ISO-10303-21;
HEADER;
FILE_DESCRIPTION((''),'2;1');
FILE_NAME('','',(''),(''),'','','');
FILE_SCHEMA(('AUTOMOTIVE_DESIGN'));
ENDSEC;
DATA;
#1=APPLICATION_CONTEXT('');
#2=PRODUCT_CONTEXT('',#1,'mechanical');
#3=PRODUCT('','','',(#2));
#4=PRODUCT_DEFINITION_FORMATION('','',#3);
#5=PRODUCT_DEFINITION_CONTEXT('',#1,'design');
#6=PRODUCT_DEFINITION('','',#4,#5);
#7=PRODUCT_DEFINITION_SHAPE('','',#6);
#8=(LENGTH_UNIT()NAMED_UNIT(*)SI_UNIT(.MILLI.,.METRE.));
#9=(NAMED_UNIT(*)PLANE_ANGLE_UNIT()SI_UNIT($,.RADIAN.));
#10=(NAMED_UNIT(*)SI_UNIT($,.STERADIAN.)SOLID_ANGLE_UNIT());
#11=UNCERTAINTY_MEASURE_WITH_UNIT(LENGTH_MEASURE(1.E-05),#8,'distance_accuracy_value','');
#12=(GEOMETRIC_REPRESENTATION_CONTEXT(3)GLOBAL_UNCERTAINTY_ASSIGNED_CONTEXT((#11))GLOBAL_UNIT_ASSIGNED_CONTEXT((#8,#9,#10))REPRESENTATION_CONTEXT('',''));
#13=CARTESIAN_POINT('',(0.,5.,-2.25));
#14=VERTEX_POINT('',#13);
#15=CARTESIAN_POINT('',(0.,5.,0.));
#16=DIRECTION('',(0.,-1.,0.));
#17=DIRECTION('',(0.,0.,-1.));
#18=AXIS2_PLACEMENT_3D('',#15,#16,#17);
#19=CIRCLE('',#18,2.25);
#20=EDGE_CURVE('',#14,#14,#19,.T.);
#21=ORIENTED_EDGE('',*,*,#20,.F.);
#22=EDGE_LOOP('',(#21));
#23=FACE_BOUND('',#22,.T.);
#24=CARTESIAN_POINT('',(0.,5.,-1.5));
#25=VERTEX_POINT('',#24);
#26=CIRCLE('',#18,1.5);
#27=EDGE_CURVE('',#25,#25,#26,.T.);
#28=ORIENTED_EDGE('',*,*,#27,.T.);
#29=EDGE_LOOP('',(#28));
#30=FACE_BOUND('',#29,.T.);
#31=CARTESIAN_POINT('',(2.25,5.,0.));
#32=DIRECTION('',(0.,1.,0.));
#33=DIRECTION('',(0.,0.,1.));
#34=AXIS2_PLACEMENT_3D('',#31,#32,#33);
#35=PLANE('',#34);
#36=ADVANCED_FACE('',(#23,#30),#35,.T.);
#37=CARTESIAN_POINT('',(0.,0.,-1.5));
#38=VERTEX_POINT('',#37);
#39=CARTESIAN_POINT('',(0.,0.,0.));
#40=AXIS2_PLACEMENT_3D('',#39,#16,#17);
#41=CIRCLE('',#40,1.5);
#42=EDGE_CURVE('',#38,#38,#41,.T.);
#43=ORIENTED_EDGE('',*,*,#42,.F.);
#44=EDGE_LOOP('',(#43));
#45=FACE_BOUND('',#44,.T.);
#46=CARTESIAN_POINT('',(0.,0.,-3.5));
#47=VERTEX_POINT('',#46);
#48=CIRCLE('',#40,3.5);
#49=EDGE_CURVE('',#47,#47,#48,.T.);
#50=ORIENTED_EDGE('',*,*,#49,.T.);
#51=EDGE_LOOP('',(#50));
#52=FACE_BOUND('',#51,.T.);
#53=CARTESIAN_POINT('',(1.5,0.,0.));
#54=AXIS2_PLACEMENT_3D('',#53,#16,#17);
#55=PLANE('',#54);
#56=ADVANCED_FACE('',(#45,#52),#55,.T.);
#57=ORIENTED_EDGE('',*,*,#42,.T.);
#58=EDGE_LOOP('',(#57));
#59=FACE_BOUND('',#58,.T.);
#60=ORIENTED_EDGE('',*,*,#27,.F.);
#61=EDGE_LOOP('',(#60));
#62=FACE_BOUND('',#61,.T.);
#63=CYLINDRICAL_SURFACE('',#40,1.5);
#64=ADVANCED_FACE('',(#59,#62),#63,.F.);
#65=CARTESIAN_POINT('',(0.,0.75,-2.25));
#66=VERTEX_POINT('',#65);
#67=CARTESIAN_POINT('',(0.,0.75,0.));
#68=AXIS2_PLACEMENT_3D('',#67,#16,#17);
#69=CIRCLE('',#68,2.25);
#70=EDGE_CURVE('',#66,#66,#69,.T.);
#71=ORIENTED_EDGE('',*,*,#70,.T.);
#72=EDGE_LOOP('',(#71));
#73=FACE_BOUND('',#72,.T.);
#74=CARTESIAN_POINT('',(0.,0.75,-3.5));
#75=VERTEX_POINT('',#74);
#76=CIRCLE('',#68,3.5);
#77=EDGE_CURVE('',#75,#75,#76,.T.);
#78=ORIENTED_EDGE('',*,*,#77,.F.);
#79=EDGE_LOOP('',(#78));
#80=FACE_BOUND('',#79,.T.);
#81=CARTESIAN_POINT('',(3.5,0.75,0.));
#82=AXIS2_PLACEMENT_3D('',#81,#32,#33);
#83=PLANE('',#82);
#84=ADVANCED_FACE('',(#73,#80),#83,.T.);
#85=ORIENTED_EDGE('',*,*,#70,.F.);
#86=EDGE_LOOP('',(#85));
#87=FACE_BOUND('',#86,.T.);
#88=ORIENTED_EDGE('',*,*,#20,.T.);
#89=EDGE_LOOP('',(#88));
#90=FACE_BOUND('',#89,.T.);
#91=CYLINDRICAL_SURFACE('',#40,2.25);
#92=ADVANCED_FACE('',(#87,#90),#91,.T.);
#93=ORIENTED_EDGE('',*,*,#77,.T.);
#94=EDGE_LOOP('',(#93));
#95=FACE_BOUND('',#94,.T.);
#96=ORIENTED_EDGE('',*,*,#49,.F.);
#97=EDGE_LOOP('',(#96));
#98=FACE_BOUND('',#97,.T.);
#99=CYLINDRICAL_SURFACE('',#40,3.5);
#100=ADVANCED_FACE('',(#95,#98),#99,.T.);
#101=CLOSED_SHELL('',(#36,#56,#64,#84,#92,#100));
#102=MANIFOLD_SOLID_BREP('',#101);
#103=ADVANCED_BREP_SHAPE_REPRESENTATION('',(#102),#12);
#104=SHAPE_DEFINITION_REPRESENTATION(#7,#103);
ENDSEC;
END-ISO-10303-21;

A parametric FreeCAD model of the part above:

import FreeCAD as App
import Part
import Sketcher
Q = App.Units.Quantity

doc = App.newDocument("Part")
params = doc.addObject("Spreadsheet::Sheet", "Params")
for row, (alias, value) in enumerate([
    ("sketch1_width", "2 mm"),
    ("sketch1_height", "5 mm"),
    ("sketch1_width2", "1.25 mm"),
    ("revolution_angle", "360 deg"),
], start=1):
    params.set(f"A{row}", alias)
    params.set(f"B{row}", "=" + value)
    params.setAlias(f"B{row}", alias)

body = doc.addObject("PartDesign::Body", "Body")

# Sketch on XY plane
sketch1 = body.newObject("Sketcher::SketchObject", "Sketch")
sketch1.AttachmentSupport = (doc.getObject("XY_Plane"), [""])
sketch1.MapMode = "FlatFace"
sketch1.addGeometry([
    Part.LineSegment(App.Vector(1.5, 0, 0), App.Vector(3.5, 0, 0)),  # 0
    Part.LineSegment(App.Vector(3.5, 0, 0), App.Vector(3.5, 0.8, 0)),  # 1
    Part.LineSegment(App.Vector(3.5, 0.8, 0), App.Vector(2.2, 0.8, 0)),  # 2
    Part.LineSegment(App.Vector(2.2, 0.8, 0), App.Vector(2.2, 5, 0)),  # 3
    Part.LineSegment(App.Vector(2.2, 5, 0), App.Vector(1.5, 5, 0)),  # 4
    Part.LineSegment(App.Vector(1.5, 5, 0), App.Vector(1.5, 0, 0)),  # 5
], False)
sketch1.addConstraint([
    Sketcher.Constraint("Coincident", 0, 2, 1, 1),
    Sketcher.Constraint("Coincident", 1, 2, 2, 1),
    Sketcher.Constraint("Coincident", 2, 2, 3, 1),
    Sketcher.Constraint("Coincident", 3, 2, 4, 1),
    Sketcher.Constraint("Coincident", 4, 2, 5, 1),
    Sketcher.Constraint("Coincident", 5, 2, 0, 1),
    Sketcher.Constraint("Horizontal", 0),
    Sketcher.Constraint("Vertical", 1),
    Sketcher.Constraint("Horizontal", 2),
    Sketcher.Constraint("Vertical", 3),
    Sketcher.Constraint("Horizontal", 4),
    Sketcher.Constraint("Vertical", 5),
    Sketcher.Constraint("PointOnObject", 0, 2, -1),
    Sketcher.Constraint("Equal", 4, 1),
    Sketcher.Constraint("DistanceX", 0, 1, 0, 2, Q("2 mm")),
    Sketcher.Constraint("DistanceY", 5, 2, 5, 1, Q("5 mm")),
    Sketcher.Constraint("DistanceX", 2, 2, 2, 1, Q("1.25 mm")),
    Sketcher.Constraint("DistanceX", -1, 1, 0, 2, Q("3.5 mm")),
])
sketch1.setExpression("Constraints[14]", "Params.sketch1_width")
sketch1.setExpression("Constraints[15]", "Params.sketch1_height")
sketch1.setExpression("Constraints[16]", "Params.sketch1_width2")
revolution = body.newObject("PartDesign::Revolution", "Revolution")
revolution.Profile = sketch1
revolution.ReferenceAxis = (sketch1, ["V_Axis"])
revolution.setExpression("Angle", "Params.revolution_angle")

doc.recompute()
